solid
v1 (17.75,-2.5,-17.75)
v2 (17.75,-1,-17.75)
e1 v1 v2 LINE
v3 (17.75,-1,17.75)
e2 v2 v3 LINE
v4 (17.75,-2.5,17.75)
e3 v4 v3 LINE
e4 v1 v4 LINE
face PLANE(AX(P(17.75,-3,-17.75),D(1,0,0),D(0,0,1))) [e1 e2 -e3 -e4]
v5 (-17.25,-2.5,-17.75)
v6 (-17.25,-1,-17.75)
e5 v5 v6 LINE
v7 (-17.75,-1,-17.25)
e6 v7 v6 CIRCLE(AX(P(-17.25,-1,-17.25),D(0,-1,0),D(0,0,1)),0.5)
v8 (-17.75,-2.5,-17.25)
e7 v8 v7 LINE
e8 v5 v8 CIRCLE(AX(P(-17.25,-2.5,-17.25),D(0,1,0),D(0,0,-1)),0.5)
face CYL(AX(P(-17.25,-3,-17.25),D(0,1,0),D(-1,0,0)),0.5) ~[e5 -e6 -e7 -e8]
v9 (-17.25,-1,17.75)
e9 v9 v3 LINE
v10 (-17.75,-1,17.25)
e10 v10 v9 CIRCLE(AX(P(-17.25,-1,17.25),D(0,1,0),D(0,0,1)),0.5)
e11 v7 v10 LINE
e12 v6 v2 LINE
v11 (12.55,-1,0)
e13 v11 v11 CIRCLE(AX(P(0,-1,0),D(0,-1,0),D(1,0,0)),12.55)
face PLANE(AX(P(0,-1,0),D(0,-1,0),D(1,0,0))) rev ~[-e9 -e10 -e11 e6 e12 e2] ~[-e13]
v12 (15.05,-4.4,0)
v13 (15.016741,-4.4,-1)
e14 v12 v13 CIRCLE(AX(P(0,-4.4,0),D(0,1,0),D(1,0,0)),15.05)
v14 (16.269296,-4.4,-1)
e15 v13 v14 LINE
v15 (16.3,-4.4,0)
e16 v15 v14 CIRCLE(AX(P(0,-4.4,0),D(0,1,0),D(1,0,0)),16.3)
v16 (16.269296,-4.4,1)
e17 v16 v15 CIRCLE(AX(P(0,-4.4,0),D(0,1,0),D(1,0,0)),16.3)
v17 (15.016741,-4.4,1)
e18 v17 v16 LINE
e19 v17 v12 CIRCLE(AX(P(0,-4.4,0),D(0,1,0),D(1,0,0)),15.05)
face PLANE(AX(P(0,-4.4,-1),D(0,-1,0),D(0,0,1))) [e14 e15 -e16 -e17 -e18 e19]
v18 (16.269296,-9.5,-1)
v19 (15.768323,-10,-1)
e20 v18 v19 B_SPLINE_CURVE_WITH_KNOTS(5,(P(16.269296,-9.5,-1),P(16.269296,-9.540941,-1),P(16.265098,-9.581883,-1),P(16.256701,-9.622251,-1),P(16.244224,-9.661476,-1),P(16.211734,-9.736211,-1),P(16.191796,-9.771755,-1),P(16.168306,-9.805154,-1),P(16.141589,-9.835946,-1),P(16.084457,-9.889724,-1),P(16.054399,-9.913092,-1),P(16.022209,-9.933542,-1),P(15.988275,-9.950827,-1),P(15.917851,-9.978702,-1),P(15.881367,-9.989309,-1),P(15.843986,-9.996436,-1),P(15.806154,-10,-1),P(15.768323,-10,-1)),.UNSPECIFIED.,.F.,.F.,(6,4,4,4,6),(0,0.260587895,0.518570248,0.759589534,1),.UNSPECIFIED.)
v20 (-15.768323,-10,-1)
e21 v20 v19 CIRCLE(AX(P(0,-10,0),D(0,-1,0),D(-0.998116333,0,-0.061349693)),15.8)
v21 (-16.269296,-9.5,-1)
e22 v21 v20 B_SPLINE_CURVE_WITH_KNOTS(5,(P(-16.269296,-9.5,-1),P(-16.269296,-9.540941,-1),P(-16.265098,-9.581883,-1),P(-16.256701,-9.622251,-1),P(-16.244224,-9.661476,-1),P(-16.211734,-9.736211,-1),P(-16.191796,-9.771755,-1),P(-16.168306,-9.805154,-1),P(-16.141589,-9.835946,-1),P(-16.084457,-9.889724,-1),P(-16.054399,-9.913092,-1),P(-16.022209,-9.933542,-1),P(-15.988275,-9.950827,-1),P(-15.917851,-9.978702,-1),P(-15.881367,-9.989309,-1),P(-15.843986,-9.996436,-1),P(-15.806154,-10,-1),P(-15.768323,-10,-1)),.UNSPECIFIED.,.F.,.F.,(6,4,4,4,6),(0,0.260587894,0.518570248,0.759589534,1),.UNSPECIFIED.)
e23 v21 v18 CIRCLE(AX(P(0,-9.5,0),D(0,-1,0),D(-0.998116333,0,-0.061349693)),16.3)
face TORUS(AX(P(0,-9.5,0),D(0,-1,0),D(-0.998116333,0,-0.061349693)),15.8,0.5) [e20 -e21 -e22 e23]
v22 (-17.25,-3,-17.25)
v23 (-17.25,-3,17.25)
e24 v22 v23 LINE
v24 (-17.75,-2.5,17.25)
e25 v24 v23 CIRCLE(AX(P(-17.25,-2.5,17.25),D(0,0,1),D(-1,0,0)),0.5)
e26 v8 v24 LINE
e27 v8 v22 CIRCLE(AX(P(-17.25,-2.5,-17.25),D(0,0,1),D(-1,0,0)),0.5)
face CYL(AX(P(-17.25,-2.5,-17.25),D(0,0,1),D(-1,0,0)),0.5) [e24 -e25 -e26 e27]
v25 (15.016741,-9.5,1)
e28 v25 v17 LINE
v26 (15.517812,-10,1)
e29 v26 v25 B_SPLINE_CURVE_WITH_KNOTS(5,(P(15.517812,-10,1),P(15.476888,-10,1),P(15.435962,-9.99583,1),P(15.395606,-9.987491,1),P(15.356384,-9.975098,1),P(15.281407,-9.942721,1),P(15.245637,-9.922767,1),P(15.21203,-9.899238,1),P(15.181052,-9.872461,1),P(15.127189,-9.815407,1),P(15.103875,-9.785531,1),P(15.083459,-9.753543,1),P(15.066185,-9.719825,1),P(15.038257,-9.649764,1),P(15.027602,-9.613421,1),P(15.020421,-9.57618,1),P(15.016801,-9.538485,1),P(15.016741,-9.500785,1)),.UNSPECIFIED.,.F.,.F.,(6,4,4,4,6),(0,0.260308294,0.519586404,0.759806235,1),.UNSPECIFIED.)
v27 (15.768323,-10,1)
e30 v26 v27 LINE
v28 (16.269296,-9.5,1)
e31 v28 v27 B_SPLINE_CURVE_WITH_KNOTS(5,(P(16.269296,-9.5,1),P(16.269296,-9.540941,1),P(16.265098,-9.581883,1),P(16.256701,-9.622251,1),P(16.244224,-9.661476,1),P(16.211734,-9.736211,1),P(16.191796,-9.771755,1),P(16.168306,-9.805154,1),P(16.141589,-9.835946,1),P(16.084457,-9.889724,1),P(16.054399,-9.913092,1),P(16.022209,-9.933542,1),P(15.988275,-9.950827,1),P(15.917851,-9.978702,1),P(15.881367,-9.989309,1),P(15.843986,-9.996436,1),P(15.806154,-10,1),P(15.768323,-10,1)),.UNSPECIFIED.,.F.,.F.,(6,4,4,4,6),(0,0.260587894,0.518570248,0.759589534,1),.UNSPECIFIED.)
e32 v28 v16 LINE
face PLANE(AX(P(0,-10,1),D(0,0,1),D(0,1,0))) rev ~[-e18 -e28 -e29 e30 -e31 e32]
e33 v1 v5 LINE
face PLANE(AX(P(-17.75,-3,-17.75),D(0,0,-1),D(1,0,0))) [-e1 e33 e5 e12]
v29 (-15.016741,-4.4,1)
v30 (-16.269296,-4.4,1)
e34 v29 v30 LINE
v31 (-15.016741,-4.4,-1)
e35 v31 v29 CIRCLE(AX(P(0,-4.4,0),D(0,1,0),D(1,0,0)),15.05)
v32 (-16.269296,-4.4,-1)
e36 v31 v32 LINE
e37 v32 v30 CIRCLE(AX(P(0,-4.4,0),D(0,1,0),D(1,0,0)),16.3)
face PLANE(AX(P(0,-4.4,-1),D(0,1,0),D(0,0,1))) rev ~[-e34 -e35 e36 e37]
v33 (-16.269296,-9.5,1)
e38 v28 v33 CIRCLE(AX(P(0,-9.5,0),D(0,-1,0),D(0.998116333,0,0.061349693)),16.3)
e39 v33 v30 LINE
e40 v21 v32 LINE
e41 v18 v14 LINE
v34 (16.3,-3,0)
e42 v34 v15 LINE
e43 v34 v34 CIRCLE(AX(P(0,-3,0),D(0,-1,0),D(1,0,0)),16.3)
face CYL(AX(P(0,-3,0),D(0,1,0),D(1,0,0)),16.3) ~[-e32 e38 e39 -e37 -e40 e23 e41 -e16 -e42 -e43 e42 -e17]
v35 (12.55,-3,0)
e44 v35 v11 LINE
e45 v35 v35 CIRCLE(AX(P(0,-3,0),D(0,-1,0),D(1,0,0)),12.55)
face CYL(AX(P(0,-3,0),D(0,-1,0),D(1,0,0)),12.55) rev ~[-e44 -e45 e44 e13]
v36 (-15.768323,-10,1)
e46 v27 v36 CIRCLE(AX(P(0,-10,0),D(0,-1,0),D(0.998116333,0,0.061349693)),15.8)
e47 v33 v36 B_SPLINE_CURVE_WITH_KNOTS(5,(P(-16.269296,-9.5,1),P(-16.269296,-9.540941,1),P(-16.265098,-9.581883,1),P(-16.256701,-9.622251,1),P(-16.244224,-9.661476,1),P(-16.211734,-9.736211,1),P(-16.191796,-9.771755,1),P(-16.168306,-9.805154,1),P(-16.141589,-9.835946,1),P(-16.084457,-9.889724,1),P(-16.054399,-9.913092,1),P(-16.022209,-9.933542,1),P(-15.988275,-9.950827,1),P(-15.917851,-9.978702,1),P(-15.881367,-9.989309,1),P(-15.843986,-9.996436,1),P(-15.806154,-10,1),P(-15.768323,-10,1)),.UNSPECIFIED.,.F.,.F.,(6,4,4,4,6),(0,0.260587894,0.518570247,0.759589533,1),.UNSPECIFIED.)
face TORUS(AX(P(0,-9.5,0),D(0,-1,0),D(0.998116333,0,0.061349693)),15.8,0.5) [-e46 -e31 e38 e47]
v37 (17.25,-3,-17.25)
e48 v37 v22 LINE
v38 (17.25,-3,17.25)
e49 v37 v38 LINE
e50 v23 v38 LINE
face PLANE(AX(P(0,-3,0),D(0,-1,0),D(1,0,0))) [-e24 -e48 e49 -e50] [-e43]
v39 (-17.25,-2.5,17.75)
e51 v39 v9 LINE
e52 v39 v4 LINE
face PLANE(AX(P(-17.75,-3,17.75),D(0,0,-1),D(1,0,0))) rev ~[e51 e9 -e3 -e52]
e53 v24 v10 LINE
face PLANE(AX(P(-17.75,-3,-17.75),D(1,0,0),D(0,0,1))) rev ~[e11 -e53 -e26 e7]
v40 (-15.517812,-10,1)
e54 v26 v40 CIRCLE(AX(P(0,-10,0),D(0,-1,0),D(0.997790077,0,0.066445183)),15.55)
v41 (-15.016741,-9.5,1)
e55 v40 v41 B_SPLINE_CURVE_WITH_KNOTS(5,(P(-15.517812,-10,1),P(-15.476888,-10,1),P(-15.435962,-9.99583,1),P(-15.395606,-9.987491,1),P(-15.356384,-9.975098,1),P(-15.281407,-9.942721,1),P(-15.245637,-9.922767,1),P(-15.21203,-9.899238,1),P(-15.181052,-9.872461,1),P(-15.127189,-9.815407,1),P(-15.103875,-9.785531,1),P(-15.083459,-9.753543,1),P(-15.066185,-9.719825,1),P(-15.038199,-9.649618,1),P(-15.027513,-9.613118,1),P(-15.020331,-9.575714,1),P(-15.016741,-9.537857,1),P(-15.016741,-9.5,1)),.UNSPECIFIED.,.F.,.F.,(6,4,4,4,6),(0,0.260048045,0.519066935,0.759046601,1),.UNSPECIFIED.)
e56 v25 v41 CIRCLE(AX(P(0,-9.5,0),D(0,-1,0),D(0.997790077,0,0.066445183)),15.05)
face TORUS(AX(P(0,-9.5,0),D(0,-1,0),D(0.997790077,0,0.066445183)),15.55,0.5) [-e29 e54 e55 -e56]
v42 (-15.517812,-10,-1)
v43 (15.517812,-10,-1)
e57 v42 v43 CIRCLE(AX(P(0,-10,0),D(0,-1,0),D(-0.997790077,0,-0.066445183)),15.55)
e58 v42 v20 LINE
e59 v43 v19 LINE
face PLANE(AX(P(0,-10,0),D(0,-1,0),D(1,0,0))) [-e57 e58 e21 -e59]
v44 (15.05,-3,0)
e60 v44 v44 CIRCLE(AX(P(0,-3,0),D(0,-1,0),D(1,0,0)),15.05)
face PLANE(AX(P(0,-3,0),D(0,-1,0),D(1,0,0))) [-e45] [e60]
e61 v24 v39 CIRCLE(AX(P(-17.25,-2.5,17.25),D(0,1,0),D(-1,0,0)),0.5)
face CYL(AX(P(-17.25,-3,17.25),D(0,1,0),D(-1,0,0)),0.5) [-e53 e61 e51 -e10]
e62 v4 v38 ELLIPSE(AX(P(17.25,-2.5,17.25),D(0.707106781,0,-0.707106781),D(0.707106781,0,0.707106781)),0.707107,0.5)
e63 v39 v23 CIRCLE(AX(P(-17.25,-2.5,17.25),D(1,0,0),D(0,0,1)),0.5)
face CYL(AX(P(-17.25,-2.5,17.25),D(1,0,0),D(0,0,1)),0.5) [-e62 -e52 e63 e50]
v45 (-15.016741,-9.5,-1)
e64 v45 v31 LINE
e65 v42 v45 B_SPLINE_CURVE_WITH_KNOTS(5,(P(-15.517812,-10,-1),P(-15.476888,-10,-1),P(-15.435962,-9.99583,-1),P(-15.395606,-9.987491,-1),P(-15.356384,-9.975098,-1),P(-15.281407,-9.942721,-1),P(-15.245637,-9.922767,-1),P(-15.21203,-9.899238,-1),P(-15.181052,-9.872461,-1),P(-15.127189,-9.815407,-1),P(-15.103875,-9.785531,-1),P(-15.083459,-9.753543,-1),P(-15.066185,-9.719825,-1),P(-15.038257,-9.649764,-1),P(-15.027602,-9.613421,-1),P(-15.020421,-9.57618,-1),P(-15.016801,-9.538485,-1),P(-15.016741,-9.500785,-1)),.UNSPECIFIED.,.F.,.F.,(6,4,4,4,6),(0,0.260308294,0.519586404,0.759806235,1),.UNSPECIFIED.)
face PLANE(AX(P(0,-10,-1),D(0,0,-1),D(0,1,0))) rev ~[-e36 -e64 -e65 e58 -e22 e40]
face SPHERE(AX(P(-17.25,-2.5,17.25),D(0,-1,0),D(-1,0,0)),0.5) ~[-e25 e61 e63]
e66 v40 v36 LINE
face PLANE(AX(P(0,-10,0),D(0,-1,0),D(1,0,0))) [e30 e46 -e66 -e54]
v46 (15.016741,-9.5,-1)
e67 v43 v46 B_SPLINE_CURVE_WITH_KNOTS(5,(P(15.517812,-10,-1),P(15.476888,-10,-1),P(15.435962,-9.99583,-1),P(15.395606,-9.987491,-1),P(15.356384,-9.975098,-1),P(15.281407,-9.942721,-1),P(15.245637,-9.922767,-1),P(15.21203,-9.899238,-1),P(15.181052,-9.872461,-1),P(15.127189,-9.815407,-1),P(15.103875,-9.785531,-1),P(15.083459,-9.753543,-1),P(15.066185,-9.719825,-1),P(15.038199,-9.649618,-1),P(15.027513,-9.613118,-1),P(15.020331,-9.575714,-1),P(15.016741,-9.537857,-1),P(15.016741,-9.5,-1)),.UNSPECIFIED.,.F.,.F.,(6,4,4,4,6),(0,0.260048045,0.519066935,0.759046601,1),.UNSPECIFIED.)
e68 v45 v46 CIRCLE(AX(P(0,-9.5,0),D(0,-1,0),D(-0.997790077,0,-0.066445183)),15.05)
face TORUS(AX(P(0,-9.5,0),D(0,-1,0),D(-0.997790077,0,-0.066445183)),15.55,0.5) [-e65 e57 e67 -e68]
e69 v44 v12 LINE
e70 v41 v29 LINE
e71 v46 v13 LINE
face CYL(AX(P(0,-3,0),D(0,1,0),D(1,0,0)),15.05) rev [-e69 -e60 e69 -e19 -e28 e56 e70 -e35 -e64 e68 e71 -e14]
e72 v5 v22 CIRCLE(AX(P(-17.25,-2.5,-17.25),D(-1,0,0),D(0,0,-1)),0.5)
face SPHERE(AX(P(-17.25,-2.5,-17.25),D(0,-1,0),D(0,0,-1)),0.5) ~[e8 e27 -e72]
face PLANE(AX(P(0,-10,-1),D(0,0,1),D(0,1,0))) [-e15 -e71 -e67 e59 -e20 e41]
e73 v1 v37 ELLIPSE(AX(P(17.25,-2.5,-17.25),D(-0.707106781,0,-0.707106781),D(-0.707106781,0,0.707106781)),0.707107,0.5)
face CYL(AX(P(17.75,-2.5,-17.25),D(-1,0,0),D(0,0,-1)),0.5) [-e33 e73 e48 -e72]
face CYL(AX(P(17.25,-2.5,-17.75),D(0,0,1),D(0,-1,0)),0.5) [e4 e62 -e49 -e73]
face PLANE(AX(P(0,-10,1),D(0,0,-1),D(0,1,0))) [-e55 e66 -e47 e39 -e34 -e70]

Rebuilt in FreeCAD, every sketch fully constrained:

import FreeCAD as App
import Part
import Sketcher

V = App.Vector
Q = App.Units.Quantity


def edges_at(feature, points):
    """Names of the edges that pass closest to the given points."""
    edges = feature.Shape.Edges
    near = lambda p: min(range(len(edges)), key=lambda i: edges[i].distToShape(Part.Vertex(*p))[0])
    return sorted({f"Edge{near(p) + 1}" for p in points})

doc = App.newDocument("Part")
body = doc.addObject("PartDesign::Body", "Body")

# Sketch on XZ plane
sketch1 = body.newObject("Sketcher::SketchObject", "Sketch")
sketch1.AttachmentSupport = (doc.getObject("XZ_Plane"), [""])
sketch1.MapMode = "FlatFace"
sketch1.addGeometry([
    Part.Circle(V(0, 0, 0), V(0, 0, 1), 16.3),
    Part.Circle(V(0, 0, 0), V(0, 0, 1), 15.05),
], False)
sketch1.addConstraint([
    Sketcher.Constraint("Coincident", 0, 3, -1, 1),
    Sketcher.Constraint("Coincident", 1, 3, -1, 1),
    Sketcher.Constraint("Diameter", 0, Q("32.6 mm")),
    Sketcher.Constraint("Diameter", 1, Q("30.1 mm")),
])
pad1 = body.newObject("PartDesign::Pad", "Pad")
pad1.Profile = sketch1
pad1.Length = 7

# Sketch on XZ plane
sketch2 = body.newObject("Sketcher::SketchObject", "Sketch001")
sketch2.AttachmentSupport = (doc.getObject("XZ_Plane"), [""])
sketch2.MapMode = "FlatFace"
sketch2.addGeometry([
    Part.LineSegment(V(-17.75, 17.75, 0), V(-17.75, -17.75, 0)),  # 0
    Part.LineSegment(V(-17.75, -17.75, 0), V(17.75, -17.75, 0)),  # 1
    Part.LineSegment(V(17.75, -17.75, 0), V(17.75, 17.75, 0)),  # 2
    Part.LineSegment(V(17.75, 17.75, 0), V(-17.75, 17.75, 0)),  # 3
    Part.Circle(V(0, 0, 0), V(0, 0, 1), 12.55),  # 4
], False)
sketch2.addConstraint([
    Sketcher.Constraint("Coincident", 0, 2, 1, 1),
    Sketcher.Constraint("Coincident", 1, 2, 2, 1),
    Sketcher.Constraint("Coincident", 2, 2, 3, 1),
    Sketcher.Constraint("Coincident", 3, 2, 0, 1),
    Sketcher.Constraint("Vertical", 0),
    Sketcher.Constraint("Horizontal", 1),
    Sketcher.Constraint("Vertical", 2),
    Sketcher.Constraint("Horizontal", 3),
    Sketcher.Constraint("Coincident", 4, 3, -1, 1),
    Sketcher.Constraint("Symmetric", 0, 2, 2, 2, -1, 1),
    Sketcher.Constraint("Equal", 3, 0),
    Sketcher.Constraint("Diameter", 4, Q("25.1 mm")),
    Sketcher.Constraint("DistanceX", 1, 1, 1, 2, Q("35.5 mm")),
])
pad2 = body.newObject("PartDesign::Pad", "Pad001")
pad2.Profile = sketch2
pad2.Length = 2
pad2.Reversed = True

# Sketch on YZ plane
sketch3 = body.newObject("Sketcher::SketchObject", "Sketch002")
sketch3.AttachmentSupport = (doc.getObject("YZ_Plane"), [""])
sketch3.MapMode = "FlatFace"
sketch3.addGeometry([
    Part.LineSegment(V(-7, 1, 0), V(-7, -1, 0)),
    Part.LineSegment(V(-7, -1, 0), V(-1.4, -1, 0)),
    Part.LineSegment(V(-1.4, -1, 0), V(-1.4, 1, 0)),
    Part.LineSegment(V(-1.4, 1, 0), V(-7, 1, 0)),
], False)
sketch3.addConstraint([
    Sketcher.Constraint("Coincident", 0, 2, 1, 1),
    Sketcher.Constraint("Coincident", 1, 2, 2, 1),
    Sketcher.Constraint("Coincident", 2, 2, 3, 1),
    Sketcher.Constraint("Coincident", 3, 2, 0, 1),
    Sketcher.Constraint("Vertical", 0),
    Sketcher.Constraint("Horizontal", 1),
    Sketcher.Constraint("Vertical", 2),
    Sketcher.Constraint("Horizontal", 3),
    Sketcher.Constraint("DistanceY", 0, 2, 0, 1, Q("2 mm")),
    Sketcher.Constraint("DistanceX", 1, 1, 1, 2, Q("5.6 mm")),
    Sketcher.Constraint("DistanceX", 0, 2, -1, 1, Q("7 mm")),
    Sketcher.Constraint("DistanceY", 0, 2, -1, 1, Q("1 mm")),
])
pocket1 = body.newObject("PartDesign::Pocket", "Pocket")
pocket1.Profile = sketch3
pocket1.Type = "ThroughAll"
pocket1.Midplane = True
doc.recompute()

fillet = body.newObject("PartDesign::Fillet", "Fillet")
fillet.Base = (pocket1, edges_at(pocket1, [(-17.75, 1, -17.75), (-17.75, 1, 17.75)]))
fillet.Radius = 0.5
doc.recompute()

fillet2 = body.newObject("PartDesign::Fillet", "Fillet001")
fillet2.Base = (fillet, edges_at(fillet, [
    (-17.75, 0, 0),
    (0.25, 0, 17.75),
    (0.25, 0, -17.75),
    (17.75, 0, 0),
]))
fillet2.Radius = 0.5
doc.recompute()

fillet3 = body.newObject("PartDesign::Fillet", "Fillet002")
fillet3.Base = (fillet2, edges_at(fillet2, [
    (0, -7, 15.05),
    (0, -7, 16.3),
    (0, -7, -16.3),
    (0, -7, -15.05),
]))
fillet3.Radius = 0.5
body2 = doc.addObject("PartDesign::Body", "Body001")
doc.recompute()

body.Placement = App.Placement(V(0, -3, 0), App.Rotation(V(0, 0, 1), 0))
boolean = body2.newObject("PartDesign::Boolean", "Boolean")
boolean.Type = "Fuse"
boolean.addObjects([body])

doc.recompute()
